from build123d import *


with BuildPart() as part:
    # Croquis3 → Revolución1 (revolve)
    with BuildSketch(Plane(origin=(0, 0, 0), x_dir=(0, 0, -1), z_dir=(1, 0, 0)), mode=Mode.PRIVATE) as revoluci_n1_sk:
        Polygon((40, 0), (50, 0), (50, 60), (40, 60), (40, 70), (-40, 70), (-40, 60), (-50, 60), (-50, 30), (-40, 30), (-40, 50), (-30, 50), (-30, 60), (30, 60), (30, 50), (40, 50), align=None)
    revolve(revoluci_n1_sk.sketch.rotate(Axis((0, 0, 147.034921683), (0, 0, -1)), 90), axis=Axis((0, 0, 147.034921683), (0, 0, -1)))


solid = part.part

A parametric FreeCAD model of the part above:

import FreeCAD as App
import Part
import Sketcher
from FreeCAD import Vector
Q = App.Units.Quantity

doc = App.newDocument("Part")
body = doc.addObject("PartDesign::Body", "Body")

# Sketch on YZ plane
sketch1 = body.newObject("Sketcher::SketchObject", "Sketch")
sketch1.AttachmentSupport = (doc.getObject("YZ_Plane"), [""])
sketch1.MapMode = "FlatFace"
sketch1.addGeometry([
    Part.LineSegment(Vector(0, -40, 0), Vector(0, -50, 0)),  # 0
    Part.LineSegment(Vector(0, -50, 0), Vector(60, -50, 0)),  # 1
    Part.LineSegment(Vector(60, -50, 0), Vector(60, -40, 0)),  # 2
    Part.LineSegment(Vector(60, -40, 0), Vector(70, -40, 0)),  # 3
    Part.LineSegment(Vector(70, -40, 0), Vector(70, 40, 0)),  # 4
    Part.LineSegment(Vector(70, 40, 0), Vector(60, 40, 0)),  # 5
    Part.LineSegment(Vector(60, 40, 0), Vector(60, 50, 0)),  # 6
    Part.LineSegment(Vector(60, 50, 0), Vector(30, 50, 0)),  # 7
    Part.LineSegment(Vector(30, 50, 0), Vector(30, 40, 0)),  # 8
    Part.LineSegment(Vector(30, 40, 0), Vector(50, 40, 0)),  # 9
    Part.LineSegment(Vector(50, 40, 0), Vector(50, 30, 0)),  # 10
    Part.LineSegment(Vector(50, 30, 0), Vector(60, 30, 0)),  # 11
    Part.LineSegment(Vector(60, 30, 0), Vector(60, -30, 0)),  # 12
    Part.LineSegment(Vector(60, -30, 0), Vector(50, -30, 0)),  # 13
    Part.LineSegment(Vector(50, -30, 0), Vector(50, -40, 0)),  # 14
    Part.LineSegment(Vector(50, -40, 0), Vector(0, -40, 0)),  # 15
], False)
sketch1.addConstraint([
    Sketcher.Constraint("Coincident", 0, 2, 1, 1),
    Sketcher.Constraint("Coincident", 1, 2, 2, 1),
    Sketcher.Constraint("Coincident", 2, 2, 3, 1),
    Sketcher.Constraint("Coincident", 3, 2, 4, 1),
    Sketcher.Constraint("Coincident", 4, 2, 5, 1),
    Sketcher.Constraint("Coincident", 5, 2, 6, 1),
    Sketcher.Constraint("Coincident", 6, 2, 7, 1),
    Sketcher.Constraint("Coincident", 7, 2, 8, 1),
    Sketcher.Constraint("Coincident", 8, 2, 9, 1),
    Sketcher.Constraint("Coincident", 9, 2, 10, 1),
    Sketcher.Constraint("Coincident", 10, 2, 11, 1),
    Sketcher.Constraint("Coincident", 11, 2, 12, 1),
    Sketcher.Constraint("Coincident", 12, 2, 13, 1),
    Sketcher.Constraint("Coincident", 13, 2, 14, 1),
    Sketcher.Constraint("Coincident", 14, 2, 15, 1),
    Sketcher.Constraint("Coincident", 15, 2, 0, 1),
    Sketcher.Constraint("Vertical", 0),
    Sketcher.Constraint("Horizontal", 1),
    Sketcher.Constraint("Vertical", 2),
    Sketcher.Constraint("Horizontal", 3),
    Sketcher.Constraint("Vertical", 4),
    Sketcher.Constraint("Horizontal", 5),
    Sketcher.Constraint("Vertical", 6),
    Sketcher.Constraint("Horizontal", 7),
    Sketcher.Constraint("Vertical", 8),
    Sketcher.Constraint("Horizontal", 9),
    Sketcher.Constraint("Vertical", 10),
    Sketcher.Constraint("Horizontal", 11),
    Sketcher.Constraint("Vertical", 12),
    Sketcher.Constraint("Horizontal", 13),
    Sketcher.Constraint("Vertical", 14),
    Sketcher.Constraint("Horizontal", 15),
    Sketcher.Constraint("Symmetric", 2, 2, 5, 2, -1),
    Sketcher.Constraint("Symmetric", 10, 2, 13, 2, -1),
    Sketcher.Constraint("PointOnObject", 0, 2, -2),
    Sketcher.Constraint("Horizontal", 5, 2, 8, 2),
    Sketcher.Constraint("Horizontal", 3, 2, 14, 2),
    Sketcher.Constraint("Vertical", 6, 2, 11, 2),
    Sketcher.Constraint("Equal", 5, 11),
    Sketcher.Constraint("Equal", 13, 0),
    Sketcher.Constraint("Equal", 2, 6),
    Sketcher.Constraint("Equal", 8, 10),
    Sketcher.Constraint("Equal", 1, 12),
    Sketcher.Constraint("DistanceX", 1, 1, 1, 2, Q("60 mm")),
    Sketcher.Constraint("DistanceX", 3, 1, 3, 2, Q("10 mm")),
    Sketcher.Constraint("DistanceX", 7, 2, 7, 1, Q("30 mm")),
])
revolution = body.newObject("PartDesign::Revolution", "Revolution")
revolution.Profile = sketch1
revolution.ReferenceAxis = (sketch1, ["V_Axis"])
revolution.Angle = 360

doc.recompute()
